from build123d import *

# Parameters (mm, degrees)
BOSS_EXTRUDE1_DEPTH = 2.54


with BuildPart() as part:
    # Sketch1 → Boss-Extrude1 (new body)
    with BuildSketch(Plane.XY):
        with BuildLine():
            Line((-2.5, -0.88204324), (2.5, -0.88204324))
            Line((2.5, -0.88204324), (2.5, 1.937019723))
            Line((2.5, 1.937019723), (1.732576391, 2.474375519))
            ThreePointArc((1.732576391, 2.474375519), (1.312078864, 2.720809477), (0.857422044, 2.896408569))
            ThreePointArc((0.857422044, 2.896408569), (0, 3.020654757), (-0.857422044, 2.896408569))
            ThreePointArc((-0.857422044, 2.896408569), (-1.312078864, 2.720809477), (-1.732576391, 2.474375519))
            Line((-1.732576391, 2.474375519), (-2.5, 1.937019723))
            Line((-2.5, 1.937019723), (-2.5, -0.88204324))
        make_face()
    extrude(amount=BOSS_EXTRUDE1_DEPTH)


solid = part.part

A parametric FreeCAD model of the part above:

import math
import FreeCAD as App
import Part
import Sketcher
Q = App.Units.Quantity

doc = App.newDocument("Part")
params = doc.addObject("Spreadsheet::Sheet", "Params")
for row, (alias, value) in enumerate([
    ("sketch1_width", "5 mm"),
    ("pad1_length", "2.54 mm"),
], start=1):
    params.set(f"A{row}", alias)
    params.set(f"B{row}", "=" + value)
    params.setAlias(f"B{row}", alias)

body = doc.addObject("PartDesign::Body", "Body")

# Sketch on XY plane
sketch1 = body.newObject("Sketcher::SketchObject", "Sketch")
sketch1.AttachmentSupport = (doc.getObject("XY_Plane"), [""])
sketch1.MapMode = "FlatFace"
sketch1.addGeometry([
    Part.LineSegment(App.Vector(-2.5, -0.9, 0), App.Vector(2.5, -0.9, 0)),  # 0
    Part.LineSegment(App.Vector(2.5, -0.9, 0), App.Vector(2.5, 1.9, 0)),  # 1
    Part.LineSegment(App.Vector(2.5, 1.9, 0), App.Vector(1.7, 2.5, 0)),  # 2
    Part.ArcOfCircle(Part.Circle(App.Vector(0, 0, 0), App.Vector(0, 0, 1), 3), math.radians(55), math.radians(73.51)),  # 3
    Part.ArcOfCircle(Part.Circle(App.Vector(0, 0, 0), App.Vector(0, 0, 1), 3), math.radians(74), math.radians(106)),  # 4
    Part.ArcOfCircle(Part.Circle(App.Vector(0, 0, 0), App.Vector(0, 0, 1), 3), math.radians(106.49), math.radians(125)),  # 5
    Part.LineSegment(App.Vector(-1.7, 2.5, 0), App.Vector(-2.5, 1.9, 0)),  # 6
    Part.LineSegment(App.Vector(-2.5, 1.9, 0), App.Vector(-2.5, -0.9, 0)),  # 7
], False)
sketch1.addConstraint([
    Sketcher.Constraint("Coincident", 0, 2, 1, 1),
    Sketcher.Constraint("Coincident", 1, 2, 2, 1),
    Sketcher.Constraint("Tangent", 2, 2, 3, 1),
    Sketcher.Constraint("Tangent", 3, 2, 4, 1),
    Sketcher.Constraint("Tangent", 4, 2, 5, 1),
    Sketcher.Constraint("Tangent", 5, 2, 6, 1),
    Sketcher.Constraint("Coincident", 6, 2, 7, 1),
    Sketcher.Constraint("Coincident", 7, 2, 0, 1),
    Sketcher.Constraint("Horizontal", 0),
    Sketcher.Constraint("Vertical", 1),
    Sketcher.Constraint("Vertical", 7),
    Sketcher.Constraint("Coincident", 3, 3, -1, 1),
    Sketcher.Constraint("Coincident", 5, 3, -1, 1),
    Sketcher.Constraint("Symmetric", 1, 2, 6, 2, -2),
    Sketcher.Constraint("Horizontal", 3, 2, 4, 2),
    Sketcher.Constraint("DistanceX", 0, 1, 0, 2, Q("5 mm")),
    Sketcher.Constraint("Angle", 2, Q("145 deg")),
    Sketcher.Constraint("DistanceX", 4, 2, 2, 2, Q("2.589998 mm")),
    Sketcher.Constraint("Radius", 3, Q("3.020655 mm")),
    Sketcher.Constraint("DistanceY", 1, 1, 1, 2, Q("2.819063 mm")),
])
sketch1.setExpression("Constraints[15]", "Params.sketch1_width")
pad1 = body.newObject("PartDesign::Pad", "Pad")
pad1.Profile = sketch1
pad1.setExpression("Length", "Params.pad1_length")

doc.recompute()
